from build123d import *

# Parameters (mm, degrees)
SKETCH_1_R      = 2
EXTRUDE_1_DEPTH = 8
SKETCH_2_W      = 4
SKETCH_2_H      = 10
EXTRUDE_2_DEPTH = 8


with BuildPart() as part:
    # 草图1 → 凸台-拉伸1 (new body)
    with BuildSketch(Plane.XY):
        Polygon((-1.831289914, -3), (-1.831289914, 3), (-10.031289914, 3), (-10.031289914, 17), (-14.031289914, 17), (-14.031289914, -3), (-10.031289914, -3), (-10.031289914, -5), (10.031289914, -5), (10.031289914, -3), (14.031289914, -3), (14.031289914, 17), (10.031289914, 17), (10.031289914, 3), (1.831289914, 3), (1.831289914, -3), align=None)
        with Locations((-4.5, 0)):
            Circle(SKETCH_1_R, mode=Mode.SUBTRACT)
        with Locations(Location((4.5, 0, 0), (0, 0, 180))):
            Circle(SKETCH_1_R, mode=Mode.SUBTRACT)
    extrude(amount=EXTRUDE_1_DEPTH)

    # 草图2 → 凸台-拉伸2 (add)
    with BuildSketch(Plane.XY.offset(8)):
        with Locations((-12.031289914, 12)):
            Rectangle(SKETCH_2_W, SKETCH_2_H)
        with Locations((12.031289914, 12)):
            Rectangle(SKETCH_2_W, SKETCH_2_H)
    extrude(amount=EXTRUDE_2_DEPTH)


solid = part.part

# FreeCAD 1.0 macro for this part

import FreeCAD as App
import Part
import Sketcher
Q = App.Units.Quantity

doc = App.newDocument("Part")
body = doc.addObject("PartDesign::Body", "Body")

# Sketch on XY plane
sketch1 = body.newObject("Sketcher::SketchObject", "Sketch")
sketch1.AttachmentSupport = (doc.getObject("XY_Plane"), [""])
sketch1.MapMode = "FlatFace"
sketch1.addGeometry([
    Part.LineSegment(App.Vector(-1.8, -3, 0), App.Vector(-1.8, 3, 0)),  # 0
    Part.LineSegment(App.Vector(-1.8, 3, 0), App.Vector(-10, 3, 0)),  # 1
    Part.LineSegment(App.Vector(-10, 3, 0), App.Vector(-10, 17, 0)),  # 2
    Part.LineSegment(App.Vector(-10, 17, 0), App.Vector(-14, 17, 0)),  # 3
    Part.LineSegment(App.Vector(-14, 17, 0), App.Vector(-14, -3, 0)),  # 4
    Part.LineSegment(App.Vector(-14, -3, 0), App.Vector(-10, -3, 0)),  # 5
    Part.LineSegment(App.Vector(-10, -3, 0), App.Vector(-10, -5, 0)),  # 6
    Part.LineSegment(App.Vector(-10, -5, 0), App.Vector(10, -5, 0)),  # 7
    Part.LineSegment(App.Vector(10, -5, 0), App.Vector(10, -3, 0)),  # 8
    Part.LineSegment(App.Vector(10, -3, 0), App.Vector(14, -3, 0)),  # 9
    Part.LineSegment(App.Vector(14, -3, 0), App.Vector(14, 17, 0)),  # 10
    Part.LineSegment(App.Vector(14, 17, 0), App.Vector(10, 17, 0)),  # 11
    Part.LineSegment(App.Vector(10, 17, 0), App.Vector(10, 3, 0)),  # 12
    Part.LineSegment(App.Vector(10, 3, 0), App.Vector(1.8, 3, 0)),  # 13
    Part.LineSegment(App.Vector(1.8, 3, 0), App.Vector(1.8, -3, 0)),  # 14
    Part.LineSegment(App.Vector(1.8, -3, 0), App.Vector(-1.8, -3, 0)),  # 15
    Part.Circle(App.Vector(-4.5, 0, 0), App.Vector(0, 0, 1), 2),  # 16
    Part.Circle(App.Vector(4.5, 0, 0), App.Vector(0, 0, 1), 2),  # 17
], False)
sketch1.addConstraint([
    Sketcher.Constraint("Coincident", 0, 2, 1, 1),
    Sketcher.Constraint("Coincident", 1, 2, 2, 1),
    Sketcher.Constraint("Coincident", 2, 2, 3, 1),
    Sketcher.Constraint("Coincident", 3, 2, 4, 1),
    Sketcher.Constraint("Coincident", 4, 2, 5, 1),
    Sketcher.Constraint("Coincident", 5, 2, 6, 1),
    Sketcher.Constraint("Coincident", 6, 2, 7, 1),
    Sketcher.Constraint("Coincident", 7, 2, 8, 1),
    Sketcher.Constraint("Coincident", 8, 2, 9, 1),
    Sketcher.Constraint("Coincident", 9, 2, 10, 1),
    Sketcher.Constraint("Coincident", 10, 2, 11, 1),
    Sketcher.Constraint("Coincident", 11, 2, 12, 1),
    Sketcher.Constraint("Coincident", 12, 2, 13, 1),
    Sketcher.Constraint("Coincident", 13, 2, 14, 1),
    Sketcher.Constraint("Coincident", 14, 2, 15, 1),
    Sketcher.Constraint("Coincident", 15, 2, 0, 1),
    Sketcher.Constraint("Vertical", 0),
    Sketcher.Constraint("Horizontal", 1),
    Sketcher.Constraint("Vertical", 2),
    Sketcher.Constraint("Horizontal", 3),
    Sketcher.Constraint("Vertical", 4),
    Sketcher.Constraint("Horizontal", 5),
    Sketcher.Constraint("Vertical", 6),
    Sketcher.Constraint("Horizontal", 7),
    Sketcher.Constraint("Vertical", 8),
    Sketcher.Constraint("Horizontal", 9),
    Sketcher.Constraint("Vertical", 10),
    Sketcher.Constraint("Horizontal", 11),
    Sketcher.Constraint("Vertical", 12),
    Sketcher.Constraint("Horizontal", 13),
    Sketcher.Constraint("Vertical", 14),
    Sketcher.Constraint("Horizontal", 15),
    Sketcher.Constraint("Equal", 16, 17),
    Sketcher.Constraint("Symmetric", 16, 3, 17, 3, -1, 1),
    Sketcher.Constraint("Symmetric", 1, 2, 8, 2, -1, 1),
    Sketcher.Constraint("Symmetric", 5, 2, 12, 2, -1, 1),
    Sketcher.Constraint("Symmetric", 0, 2, 14, 2, -1, 1),
    Sketcher.Constraint("Symmetric", 5, 2, 8, 2, -2),
    Sketcher.Constraint("Symmetric", 3, 2, 10, 2, -2),
    Sketcher.Constraint("PointOnObject", 16, 3, -1),
    Sketcher.Constraint("Diameter", 16, Q("4 mm")),
    Sketcher.Constraint("DistanceX", 3, 2, 3, 1, Q("4 mm")),
    Sketcher.Constraint("DistanceY", 0, 1, 0, 2, Q("6 mm")),
    Sketcher.Constraint("DistanceY", 2, 1, 2, 2, Q("14 mm")),
    Sketcher.Constraint("DistanceY", 6, 2, 6, 1, Q("2 mm")),
    Sketcher.Constraint("DistanceX", 1, 2, 1, 1, Q("8.2 mm")),
    Sketcher.Constraint("DistanceX", 16, 3, 17, 3, Q("9 mm")),
    Sketcher.Constraint("DistanceX", 7, 1, 7, 2, Q("20.06258 mm")),
])
pad1 = body.newObject("PartDesign::Pad", "Pad")
pad1.Profile = sketch1
pad1.Length = 8

# Sketch on XY plane
sketch2 = body.newObject("Sketcher::SketchObject", "Sketch001")
sketch2.AttachmentSupport = (doc.getObject("XY_Plane"), [""])
sketch2.MapMode = "FlatFace"
sketch2.AttachmentOffset = App.Placement(App.Vector(0, 0, 8), App.Rotation())
sketch2.addGeometry([
    Part.LineSegment(App.Vector(-14, 17, 0), App.Vector(-14, 7, 0)),  # 0
    Part.LineSegment(App.Vector(-14, 7, 0), App.Vector(-10, 7, 0)),  # 1
    Part.LineSegment(App.Vector(-10, 7, 0), App.Vector(-10, 17, 0)),  # 2
    Part.LineSegment(App.Vector(-10, 17, 0), App.Vector(-14, 17, 0)),  # 3
    Part.LineSegment(App.Vector(10, 17, 0), App.Vector(10, 7, 0)),  # 4
    Part.LineSegment(App.Vector(10, 7, 0), App.Vector(14, 7, 0)),  # 5
    Part.LineSegment(App.Vector(14, 7, 0), App.Vector(14, 17, 0)),  # 6
    Part.LineSegment(App.Vector(14, 17, 0), App.Vector(10, 17, 0)),  # 7
], False)
sketch2.addConstraint([
    Sketcher.Constraint("Coincident", 0, 2, 1, 1),
    Sketcher.Constraint("Coincident", 1, 2, 2, 1),
    Sketcher.Constraint("Coincident", 2, 2, 3, 1),
    Sketcher.Constraint("Coincident", 3, 2, 0, 1),
    Sketcher.Constraint("Coincident", 4, 2, 5, 1),
    Sketcher.Constraint("Coincident", 5, 2, 6, 1),
    Sketcher.Constraint("Coincident", 6, 2, 7, 1),
    Sketcher.Constraint("Coincident", 7, 2, 4, 1),
    Sketcher.Constraint("Vertical", 0),
    Sketcher.Constraint("Horizontal", 1),
    Sketcher.Constraint("Vertical", 2),
    Sketcher.Constraint("Horizontal", 3),
    Sketcher.Constraint("Vertical", 4),
    Sketcher.Constraint("Horizontal", 5),
    Sketcher.Constraint("Vertical", 6),
    Sketcher.Constraint("Horizontal", 7),
    Sketcher.Constraint("Symmetric", 1, 2, 4, 2, -2),
    Sketcher.Constraint("Symmetric", 3, 2, 6, 2, -2),
    Sketcher.Constraint("DistanceX", 1, 1, 1, 2, Q("4 mm")),
    Sketcher.Constraint("DistanceY", 0, 2, 0, 1, Q("10 mm")),
    Sketcher.Constraint("DistanceY", -1, 1, 0, 2, Q("7 mm")),
    Sketcher.Constraint("DistanceX", 0, 2, -1, 1, Q("14.03129 mm")),
])
pad2 = body.newObject("PartDesign::Pad", "Pad001")
pad2.Profile = sketch2
pad2.Length = 8

doc.recompute()
